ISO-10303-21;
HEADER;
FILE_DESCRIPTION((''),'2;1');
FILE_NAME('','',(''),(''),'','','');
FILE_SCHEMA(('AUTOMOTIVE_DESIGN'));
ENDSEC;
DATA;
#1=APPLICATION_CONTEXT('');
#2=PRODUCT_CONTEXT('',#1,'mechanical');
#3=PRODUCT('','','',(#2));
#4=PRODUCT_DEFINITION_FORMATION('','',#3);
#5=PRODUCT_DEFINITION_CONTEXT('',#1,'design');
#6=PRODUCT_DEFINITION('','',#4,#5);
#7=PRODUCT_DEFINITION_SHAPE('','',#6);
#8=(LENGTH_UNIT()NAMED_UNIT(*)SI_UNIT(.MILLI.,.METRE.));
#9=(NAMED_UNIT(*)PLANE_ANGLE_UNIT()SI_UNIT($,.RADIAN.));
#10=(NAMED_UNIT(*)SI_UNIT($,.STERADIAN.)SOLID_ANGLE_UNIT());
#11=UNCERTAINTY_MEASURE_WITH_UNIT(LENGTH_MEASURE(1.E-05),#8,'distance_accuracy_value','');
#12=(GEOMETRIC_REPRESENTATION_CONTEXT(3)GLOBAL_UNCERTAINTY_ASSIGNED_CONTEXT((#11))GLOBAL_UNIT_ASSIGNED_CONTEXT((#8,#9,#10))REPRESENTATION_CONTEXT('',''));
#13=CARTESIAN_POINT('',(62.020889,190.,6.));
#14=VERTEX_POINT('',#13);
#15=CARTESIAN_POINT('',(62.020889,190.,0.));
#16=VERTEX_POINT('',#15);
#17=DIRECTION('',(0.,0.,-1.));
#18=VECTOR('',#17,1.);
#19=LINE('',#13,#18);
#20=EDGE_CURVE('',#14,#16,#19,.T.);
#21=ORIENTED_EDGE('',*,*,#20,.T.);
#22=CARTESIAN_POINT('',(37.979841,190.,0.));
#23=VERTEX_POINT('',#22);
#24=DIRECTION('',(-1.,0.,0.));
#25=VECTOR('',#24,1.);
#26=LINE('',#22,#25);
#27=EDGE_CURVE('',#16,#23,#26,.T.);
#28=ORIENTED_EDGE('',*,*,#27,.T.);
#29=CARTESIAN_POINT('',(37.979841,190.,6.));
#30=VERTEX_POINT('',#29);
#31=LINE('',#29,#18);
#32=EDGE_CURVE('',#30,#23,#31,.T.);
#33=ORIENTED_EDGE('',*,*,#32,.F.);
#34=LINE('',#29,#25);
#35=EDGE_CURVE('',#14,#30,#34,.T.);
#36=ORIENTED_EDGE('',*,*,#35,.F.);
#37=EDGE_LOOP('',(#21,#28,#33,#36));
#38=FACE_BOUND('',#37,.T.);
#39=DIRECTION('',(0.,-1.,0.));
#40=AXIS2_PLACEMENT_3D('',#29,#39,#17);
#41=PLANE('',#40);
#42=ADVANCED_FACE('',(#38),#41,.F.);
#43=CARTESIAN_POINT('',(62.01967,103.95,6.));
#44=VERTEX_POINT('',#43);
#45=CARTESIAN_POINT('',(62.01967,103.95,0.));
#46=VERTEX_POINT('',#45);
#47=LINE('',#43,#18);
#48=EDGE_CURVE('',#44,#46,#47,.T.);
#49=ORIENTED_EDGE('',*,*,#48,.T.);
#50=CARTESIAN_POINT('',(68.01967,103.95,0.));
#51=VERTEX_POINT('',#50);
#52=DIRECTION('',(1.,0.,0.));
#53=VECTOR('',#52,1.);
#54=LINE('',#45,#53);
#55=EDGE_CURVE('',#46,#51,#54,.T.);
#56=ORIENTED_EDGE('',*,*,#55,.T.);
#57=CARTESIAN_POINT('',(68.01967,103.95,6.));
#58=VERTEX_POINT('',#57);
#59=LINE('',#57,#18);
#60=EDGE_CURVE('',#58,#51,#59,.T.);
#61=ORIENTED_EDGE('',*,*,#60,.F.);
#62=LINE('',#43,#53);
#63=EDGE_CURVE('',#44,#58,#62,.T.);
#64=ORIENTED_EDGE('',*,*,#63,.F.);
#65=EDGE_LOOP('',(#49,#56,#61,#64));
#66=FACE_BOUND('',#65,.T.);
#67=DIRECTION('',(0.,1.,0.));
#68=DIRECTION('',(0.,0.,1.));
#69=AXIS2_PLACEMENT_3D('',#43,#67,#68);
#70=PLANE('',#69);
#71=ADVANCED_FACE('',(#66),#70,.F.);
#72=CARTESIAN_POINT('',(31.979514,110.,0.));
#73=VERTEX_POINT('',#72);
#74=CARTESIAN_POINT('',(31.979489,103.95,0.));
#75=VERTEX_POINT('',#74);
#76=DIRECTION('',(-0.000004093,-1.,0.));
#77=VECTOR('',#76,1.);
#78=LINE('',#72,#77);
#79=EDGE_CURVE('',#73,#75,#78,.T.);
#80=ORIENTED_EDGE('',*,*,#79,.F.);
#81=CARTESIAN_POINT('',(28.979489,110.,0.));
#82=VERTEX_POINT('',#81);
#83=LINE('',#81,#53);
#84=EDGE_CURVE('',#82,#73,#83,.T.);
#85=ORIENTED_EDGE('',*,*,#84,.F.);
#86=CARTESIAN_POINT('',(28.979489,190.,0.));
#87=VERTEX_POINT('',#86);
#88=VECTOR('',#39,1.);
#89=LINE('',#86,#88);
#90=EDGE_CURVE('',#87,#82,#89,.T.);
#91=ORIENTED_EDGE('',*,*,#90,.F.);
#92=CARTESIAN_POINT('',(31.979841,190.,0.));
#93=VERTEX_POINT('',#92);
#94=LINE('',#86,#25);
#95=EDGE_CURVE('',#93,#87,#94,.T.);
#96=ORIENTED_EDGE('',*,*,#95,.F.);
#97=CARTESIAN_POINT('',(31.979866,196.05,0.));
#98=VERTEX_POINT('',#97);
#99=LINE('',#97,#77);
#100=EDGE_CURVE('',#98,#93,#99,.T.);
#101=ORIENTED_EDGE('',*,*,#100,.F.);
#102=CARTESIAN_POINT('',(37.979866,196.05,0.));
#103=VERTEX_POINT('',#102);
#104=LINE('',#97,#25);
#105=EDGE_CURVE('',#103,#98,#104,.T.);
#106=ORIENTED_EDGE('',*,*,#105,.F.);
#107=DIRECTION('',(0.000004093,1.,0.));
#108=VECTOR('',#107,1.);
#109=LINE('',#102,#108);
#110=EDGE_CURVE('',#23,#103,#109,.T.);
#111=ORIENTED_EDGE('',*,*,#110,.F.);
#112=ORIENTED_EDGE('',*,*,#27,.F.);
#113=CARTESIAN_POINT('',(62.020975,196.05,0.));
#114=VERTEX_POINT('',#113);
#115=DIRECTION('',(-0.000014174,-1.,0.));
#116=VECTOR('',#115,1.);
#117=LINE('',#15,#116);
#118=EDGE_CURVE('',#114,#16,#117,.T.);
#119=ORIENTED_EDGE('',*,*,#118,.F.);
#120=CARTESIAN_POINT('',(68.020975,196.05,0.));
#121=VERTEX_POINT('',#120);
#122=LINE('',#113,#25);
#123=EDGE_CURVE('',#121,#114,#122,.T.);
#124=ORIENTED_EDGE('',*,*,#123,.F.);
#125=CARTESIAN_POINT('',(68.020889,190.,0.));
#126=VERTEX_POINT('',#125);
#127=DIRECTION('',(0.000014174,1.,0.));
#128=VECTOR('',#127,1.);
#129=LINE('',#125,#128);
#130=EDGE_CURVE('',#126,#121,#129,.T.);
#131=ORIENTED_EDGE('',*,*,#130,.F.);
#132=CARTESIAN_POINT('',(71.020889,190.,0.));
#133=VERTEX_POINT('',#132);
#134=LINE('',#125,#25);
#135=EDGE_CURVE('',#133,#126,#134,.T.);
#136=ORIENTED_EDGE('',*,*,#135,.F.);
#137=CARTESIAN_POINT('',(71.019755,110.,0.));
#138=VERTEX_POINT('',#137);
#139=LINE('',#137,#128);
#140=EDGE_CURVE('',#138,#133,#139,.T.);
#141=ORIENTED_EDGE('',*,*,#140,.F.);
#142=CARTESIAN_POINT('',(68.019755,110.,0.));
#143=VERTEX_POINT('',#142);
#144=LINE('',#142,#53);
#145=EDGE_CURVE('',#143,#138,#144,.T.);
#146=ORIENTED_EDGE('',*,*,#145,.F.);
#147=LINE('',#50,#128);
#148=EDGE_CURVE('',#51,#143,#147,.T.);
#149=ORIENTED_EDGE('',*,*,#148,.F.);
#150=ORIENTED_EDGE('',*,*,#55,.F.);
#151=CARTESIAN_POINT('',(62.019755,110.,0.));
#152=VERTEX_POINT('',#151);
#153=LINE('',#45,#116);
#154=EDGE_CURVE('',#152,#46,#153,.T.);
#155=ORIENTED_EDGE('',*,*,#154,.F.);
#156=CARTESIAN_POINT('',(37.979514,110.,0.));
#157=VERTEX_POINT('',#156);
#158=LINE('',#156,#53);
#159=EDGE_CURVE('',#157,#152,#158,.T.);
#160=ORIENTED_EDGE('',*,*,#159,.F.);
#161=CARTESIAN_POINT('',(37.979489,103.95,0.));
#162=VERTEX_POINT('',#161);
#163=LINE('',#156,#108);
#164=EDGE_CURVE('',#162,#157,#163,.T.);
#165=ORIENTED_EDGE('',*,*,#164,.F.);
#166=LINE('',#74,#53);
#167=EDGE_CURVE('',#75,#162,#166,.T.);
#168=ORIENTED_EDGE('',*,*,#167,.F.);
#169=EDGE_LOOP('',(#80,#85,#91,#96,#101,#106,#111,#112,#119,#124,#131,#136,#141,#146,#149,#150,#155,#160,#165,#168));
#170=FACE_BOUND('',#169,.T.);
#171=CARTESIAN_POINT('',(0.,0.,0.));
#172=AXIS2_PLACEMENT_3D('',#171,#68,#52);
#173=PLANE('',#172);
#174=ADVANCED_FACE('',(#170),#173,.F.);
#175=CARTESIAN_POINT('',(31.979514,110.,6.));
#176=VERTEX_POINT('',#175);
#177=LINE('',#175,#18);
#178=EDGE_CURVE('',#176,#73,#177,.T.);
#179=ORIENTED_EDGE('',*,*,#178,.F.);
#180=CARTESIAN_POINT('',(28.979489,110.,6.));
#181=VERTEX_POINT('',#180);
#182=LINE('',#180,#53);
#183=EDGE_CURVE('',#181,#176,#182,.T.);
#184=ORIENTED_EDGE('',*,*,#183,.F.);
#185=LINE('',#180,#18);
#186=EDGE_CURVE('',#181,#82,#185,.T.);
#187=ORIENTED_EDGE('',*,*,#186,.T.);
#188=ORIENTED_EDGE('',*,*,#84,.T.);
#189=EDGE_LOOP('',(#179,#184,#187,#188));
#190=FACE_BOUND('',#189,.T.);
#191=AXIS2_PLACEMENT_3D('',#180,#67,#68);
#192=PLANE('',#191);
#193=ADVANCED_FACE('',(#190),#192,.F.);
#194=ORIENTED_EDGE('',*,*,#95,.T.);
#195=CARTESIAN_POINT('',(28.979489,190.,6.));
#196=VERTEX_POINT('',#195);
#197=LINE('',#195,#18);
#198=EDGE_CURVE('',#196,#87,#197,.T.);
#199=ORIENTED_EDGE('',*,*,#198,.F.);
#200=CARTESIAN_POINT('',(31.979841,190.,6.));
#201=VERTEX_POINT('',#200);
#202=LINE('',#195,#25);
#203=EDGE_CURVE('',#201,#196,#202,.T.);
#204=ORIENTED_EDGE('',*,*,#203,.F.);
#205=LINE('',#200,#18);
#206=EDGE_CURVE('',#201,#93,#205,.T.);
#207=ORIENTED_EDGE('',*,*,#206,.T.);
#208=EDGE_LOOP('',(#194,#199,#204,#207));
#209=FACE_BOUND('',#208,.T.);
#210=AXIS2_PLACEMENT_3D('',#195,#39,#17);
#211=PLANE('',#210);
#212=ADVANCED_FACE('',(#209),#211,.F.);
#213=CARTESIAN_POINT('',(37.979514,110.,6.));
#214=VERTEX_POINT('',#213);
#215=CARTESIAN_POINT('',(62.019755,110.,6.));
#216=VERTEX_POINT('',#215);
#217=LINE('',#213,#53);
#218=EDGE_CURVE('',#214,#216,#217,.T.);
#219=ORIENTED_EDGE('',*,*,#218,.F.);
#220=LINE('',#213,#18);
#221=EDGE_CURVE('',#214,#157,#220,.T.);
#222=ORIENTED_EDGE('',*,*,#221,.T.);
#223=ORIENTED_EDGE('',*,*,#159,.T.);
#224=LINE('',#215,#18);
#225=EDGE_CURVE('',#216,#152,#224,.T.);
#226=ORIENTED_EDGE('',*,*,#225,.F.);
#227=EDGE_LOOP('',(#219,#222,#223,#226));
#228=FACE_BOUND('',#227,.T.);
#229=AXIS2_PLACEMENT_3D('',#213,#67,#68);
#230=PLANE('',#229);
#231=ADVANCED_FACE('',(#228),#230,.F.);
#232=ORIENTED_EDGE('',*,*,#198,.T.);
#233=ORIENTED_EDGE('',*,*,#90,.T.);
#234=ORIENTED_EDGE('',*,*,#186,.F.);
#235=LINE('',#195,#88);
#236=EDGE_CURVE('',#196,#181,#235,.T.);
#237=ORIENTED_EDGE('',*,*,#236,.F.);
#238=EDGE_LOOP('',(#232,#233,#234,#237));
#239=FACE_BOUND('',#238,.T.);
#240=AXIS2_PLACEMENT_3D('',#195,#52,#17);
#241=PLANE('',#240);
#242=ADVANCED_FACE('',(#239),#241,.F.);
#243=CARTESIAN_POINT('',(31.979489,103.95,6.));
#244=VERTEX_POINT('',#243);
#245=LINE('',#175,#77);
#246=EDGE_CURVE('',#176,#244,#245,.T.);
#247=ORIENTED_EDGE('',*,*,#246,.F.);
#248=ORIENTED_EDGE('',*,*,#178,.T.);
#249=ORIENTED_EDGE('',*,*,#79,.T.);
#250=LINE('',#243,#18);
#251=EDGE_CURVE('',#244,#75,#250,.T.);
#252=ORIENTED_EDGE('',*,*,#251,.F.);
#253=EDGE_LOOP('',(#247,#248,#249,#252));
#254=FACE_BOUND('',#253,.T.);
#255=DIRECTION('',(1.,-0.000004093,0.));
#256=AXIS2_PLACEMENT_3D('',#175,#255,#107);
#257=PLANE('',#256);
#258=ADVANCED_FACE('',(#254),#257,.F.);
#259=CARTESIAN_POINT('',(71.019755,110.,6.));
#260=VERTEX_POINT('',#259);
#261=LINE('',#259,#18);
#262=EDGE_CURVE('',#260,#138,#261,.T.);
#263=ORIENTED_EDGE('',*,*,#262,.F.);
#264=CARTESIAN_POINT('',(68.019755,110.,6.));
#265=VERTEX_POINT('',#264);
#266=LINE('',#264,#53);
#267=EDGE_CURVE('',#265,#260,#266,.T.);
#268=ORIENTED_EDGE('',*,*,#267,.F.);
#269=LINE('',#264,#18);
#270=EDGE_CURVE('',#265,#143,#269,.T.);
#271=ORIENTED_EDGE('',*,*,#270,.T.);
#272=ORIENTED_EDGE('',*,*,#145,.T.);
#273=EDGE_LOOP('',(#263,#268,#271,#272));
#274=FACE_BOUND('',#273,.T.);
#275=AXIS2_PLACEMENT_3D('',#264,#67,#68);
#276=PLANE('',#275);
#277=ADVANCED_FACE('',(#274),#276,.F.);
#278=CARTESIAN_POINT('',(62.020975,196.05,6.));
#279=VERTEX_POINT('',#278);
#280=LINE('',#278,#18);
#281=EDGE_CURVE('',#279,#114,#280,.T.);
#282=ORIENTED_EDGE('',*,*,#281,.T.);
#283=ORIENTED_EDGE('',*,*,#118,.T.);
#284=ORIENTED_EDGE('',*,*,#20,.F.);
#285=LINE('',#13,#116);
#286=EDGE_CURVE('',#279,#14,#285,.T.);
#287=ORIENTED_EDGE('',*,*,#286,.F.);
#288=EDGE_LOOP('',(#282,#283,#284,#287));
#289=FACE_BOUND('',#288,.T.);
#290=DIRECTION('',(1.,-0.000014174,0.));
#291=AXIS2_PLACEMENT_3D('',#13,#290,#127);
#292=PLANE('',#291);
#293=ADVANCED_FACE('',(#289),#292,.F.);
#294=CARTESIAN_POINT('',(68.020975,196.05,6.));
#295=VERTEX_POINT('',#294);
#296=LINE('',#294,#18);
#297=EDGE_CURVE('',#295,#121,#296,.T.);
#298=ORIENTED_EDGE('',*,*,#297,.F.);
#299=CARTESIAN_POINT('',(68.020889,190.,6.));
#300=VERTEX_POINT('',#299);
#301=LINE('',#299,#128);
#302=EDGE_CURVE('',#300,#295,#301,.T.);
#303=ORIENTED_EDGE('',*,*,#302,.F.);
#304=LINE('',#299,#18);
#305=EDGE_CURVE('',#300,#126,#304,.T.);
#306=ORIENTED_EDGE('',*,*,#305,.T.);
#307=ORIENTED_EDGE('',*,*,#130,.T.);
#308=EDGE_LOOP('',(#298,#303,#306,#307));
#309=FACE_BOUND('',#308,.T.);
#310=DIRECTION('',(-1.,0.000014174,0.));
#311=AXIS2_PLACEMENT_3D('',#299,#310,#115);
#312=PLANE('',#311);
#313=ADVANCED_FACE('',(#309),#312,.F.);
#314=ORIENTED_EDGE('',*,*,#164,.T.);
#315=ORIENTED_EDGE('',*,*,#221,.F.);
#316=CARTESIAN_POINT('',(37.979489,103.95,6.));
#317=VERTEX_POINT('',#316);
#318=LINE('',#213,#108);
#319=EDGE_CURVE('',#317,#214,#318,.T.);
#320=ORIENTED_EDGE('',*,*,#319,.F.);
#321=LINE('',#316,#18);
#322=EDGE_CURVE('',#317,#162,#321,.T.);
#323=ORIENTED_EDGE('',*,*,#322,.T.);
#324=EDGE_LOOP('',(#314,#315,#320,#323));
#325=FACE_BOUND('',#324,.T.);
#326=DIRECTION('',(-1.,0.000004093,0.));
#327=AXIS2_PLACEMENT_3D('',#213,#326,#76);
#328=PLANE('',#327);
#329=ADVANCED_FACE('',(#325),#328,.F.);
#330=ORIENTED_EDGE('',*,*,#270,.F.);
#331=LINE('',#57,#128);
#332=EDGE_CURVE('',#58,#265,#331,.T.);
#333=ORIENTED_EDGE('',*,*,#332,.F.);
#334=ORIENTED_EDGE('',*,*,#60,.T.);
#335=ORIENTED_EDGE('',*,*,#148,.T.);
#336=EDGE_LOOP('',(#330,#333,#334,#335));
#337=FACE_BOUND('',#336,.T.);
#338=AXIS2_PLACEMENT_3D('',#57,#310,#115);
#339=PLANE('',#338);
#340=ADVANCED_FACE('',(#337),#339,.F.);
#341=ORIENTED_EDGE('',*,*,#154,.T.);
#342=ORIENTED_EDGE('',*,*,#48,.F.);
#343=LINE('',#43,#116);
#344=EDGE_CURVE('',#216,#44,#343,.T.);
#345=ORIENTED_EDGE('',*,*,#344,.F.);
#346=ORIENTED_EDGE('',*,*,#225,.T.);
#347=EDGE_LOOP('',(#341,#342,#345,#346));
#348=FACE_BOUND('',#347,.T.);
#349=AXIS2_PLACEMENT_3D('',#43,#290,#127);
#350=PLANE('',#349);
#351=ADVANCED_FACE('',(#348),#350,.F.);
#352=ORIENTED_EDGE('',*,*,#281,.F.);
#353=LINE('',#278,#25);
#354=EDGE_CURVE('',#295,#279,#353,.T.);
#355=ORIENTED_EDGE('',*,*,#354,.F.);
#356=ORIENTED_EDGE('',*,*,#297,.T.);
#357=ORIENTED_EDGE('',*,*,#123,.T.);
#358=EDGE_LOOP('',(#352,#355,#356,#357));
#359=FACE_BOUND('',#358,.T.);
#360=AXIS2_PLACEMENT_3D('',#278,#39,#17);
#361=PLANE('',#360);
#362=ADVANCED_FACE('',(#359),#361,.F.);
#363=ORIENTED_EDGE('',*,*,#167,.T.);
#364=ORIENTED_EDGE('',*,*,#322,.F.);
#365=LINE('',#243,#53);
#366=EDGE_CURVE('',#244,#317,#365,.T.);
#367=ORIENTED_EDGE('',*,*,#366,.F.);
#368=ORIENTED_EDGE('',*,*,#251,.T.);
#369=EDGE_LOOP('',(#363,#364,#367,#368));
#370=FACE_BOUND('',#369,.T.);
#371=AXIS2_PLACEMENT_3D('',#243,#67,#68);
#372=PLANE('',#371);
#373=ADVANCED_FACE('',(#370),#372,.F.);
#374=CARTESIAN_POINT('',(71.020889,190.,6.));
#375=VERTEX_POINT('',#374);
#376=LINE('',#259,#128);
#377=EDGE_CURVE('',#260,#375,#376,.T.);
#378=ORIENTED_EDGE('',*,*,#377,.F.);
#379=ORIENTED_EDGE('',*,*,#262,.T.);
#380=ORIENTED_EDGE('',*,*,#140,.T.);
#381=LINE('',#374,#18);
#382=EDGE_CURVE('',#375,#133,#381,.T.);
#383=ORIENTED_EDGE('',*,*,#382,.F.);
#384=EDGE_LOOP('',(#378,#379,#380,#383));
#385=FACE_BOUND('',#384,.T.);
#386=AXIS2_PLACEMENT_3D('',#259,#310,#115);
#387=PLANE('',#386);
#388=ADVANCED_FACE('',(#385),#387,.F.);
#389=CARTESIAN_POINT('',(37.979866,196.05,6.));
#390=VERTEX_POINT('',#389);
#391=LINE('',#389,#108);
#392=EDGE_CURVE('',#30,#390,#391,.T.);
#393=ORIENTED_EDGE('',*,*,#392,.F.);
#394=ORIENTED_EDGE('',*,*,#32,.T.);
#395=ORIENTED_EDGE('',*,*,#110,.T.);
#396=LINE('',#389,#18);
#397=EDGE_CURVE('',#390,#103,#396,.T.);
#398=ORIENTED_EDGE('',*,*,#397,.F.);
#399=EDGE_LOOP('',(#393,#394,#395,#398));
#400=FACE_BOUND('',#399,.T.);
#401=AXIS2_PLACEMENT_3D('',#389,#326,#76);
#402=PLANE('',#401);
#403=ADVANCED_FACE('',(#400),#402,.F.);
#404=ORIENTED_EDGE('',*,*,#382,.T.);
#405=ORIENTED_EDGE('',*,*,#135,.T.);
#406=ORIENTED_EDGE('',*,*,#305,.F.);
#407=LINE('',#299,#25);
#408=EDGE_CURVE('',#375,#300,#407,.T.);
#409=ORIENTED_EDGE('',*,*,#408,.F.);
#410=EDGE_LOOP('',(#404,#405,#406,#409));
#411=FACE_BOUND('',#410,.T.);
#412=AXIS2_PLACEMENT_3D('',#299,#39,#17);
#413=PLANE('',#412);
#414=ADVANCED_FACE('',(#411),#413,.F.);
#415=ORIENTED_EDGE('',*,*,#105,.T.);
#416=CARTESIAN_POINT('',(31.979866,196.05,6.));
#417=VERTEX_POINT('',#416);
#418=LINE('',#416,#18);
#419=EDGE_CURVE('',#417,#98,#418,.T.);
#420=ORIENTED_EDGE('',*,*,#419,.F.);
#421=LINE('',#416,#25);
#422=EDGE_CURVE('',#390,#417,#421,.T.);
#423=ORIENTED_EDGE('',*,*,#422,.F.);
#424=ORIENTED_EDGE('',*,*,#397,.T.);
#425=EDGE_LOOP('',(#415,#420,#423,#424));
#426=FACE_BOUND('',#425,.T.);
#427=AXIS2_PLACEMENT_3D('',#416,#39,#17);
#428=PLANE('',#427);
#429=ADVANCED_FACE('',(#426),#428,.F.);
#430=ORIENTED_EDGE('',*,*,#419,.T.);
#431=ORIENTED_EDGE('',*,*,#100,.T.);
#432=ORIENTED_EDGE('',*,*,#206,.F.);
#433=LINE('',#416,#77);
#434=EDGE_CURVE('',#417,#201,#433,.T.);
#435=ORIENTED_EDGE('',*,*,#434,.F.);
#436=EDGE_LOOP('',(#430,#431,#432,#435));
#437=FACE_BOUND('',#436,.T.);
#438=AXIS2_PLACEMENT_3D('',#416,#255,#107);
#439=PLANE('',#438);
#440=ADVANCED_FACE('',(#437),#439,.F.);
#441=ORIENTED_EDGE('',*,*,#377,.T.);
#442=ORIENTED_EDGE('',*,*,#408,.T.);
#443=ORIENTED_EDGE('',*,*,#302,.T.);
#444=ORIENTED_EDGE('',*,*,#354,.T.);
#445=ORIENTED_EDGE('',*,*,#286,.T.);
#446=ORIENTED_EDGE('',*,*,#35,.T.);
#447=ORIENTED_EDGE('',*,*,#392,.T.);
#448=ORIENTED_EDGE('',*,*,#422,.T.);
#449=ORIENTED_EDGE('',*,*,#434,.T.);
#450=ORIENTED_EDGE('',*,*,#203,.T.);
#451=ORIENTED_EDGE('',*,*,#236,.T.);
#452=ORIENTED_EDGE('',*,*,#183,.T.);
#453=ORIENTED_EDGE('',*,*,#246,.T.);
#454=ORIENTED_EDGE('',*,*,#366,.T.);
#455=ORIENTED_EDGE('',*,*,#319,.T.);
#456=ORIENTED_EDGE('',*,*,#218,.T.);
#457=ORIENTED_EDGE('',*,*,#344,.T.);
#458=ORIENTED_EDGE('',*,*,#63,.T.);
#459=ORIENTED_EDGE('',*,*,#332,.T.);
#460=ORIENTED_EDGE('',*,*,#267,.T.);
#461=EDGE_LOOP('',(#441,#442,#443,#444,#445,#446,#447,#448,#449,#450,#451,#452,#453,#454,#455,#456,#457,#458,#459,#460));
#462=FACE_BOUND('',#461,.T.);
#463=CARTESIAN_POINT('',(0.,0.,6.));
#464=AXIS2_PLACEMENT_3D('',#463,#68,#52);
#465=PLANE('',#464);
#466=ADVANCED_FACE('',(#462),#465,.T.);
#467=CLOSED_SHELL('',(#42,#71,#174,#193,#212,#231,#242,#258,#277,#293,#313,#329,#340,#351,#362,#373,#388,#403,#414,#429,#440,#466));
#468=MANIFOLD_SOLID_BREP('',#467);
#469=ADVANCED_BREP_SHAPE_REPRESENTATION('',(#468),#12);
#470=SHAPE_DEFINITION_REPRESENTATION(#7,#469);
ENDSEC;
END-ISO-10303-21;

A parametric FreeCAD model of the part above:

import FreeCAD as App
import Part
import Sketcher
from FreeCAD import Vector
Q = App.Units.Quantity

doc = App.newDocument("Part")
body = doc.addObject("PartDesign::Body", "Body")

sketch1 = body.newObject("Sketcher::SketchObject", "Sketch")
sketch1.AttachmentSupport = (doc.getObject("XY_Plane"), [""])
sketch1.MapMode = "FlatFace"
sketch1.addGeometry([
    Part.LineSegment(Vector(32, 104, 0), Vector(38, 104, 0)),
    Part.LineSegment(Vector(38, 104, 0), Vector(38, 110, 0)),
    Part.LineSegment(Vector(38, 110, 0), Vector(62, 110, 0)),
    Part.LineSegment(Vector(62, 110, 0), Vector(62, 104, 0)),
    Part.LineSegment(Vector(62, 104, 0), Vector(68, 104, 0)),
    Part.LineSegment(Vector(68, 104, 0), Vector(68, 110, 0)),
    Part.LineSegment(Vector(68, 110, 0), Vector(71, 110, 0)),
    Part.LineSegment(Vector(71, 110, 0), Vector(71, 190, 0)),
    Part.LineSegment(Vector(71, 190, 0), Vector(68, 190, 0)),
    Part.LineSegment(Vector(68, 190, 0), Vector(68, 196.1, 0)),
    Part.LineSegment(Vector(68, 196.1, 0), Vector(62, 196.1, 0)),
    Part.LineSegment(Vector(62, 196.1, 0), Vector(62, 190, 0)),
    Part.LineSegment(Vector(62, 190, 0), Vector(38, 190, 0)),
    Part.LineSegment(Vector(38, 190, 0), Vector(38, 196.1, 0)),
    Part.LineSegment(Vector(38, 196.1, 0), Vector(32, 196.1, 0)),
    Part.LineSegment(Vector(32, 196.1, 0), Vector(32, 190, 0)),
    Part.LineSegment(Vector(32, 190, 0), Vector(29, 190, 0)),
    Part.LineSegment(Vector(29, 190, 0), Vector(29, 110, 0)),
    Part.LineSegment(Vector(29, 110, 0), Vector(32, 110, 0)),
    Part.LineSegment(Vector(32, 110, 0), Vector(32, 104, 0)),
], False)
sketch1.addConstraint([
    Sketcher.Constraint("Coincident", 0, 2, 1, 1),
    Sketcher.Constraint("Coincident", 1, 2, 2, 1),
    Sketcher.Constraint("Coincident", 2, 2, 3, 1),
    Sketcher.Constraint("Coincident", 3, 2, 4, 1),
    Sketcher.Constraint("Coincident", 4, 2, 5, 1),
    Sketcher.Constraint("Coincident", 5, 2, 6, 1),
    Sketcher.Constraint("Coincident", 6, 2, 7, 1),
    Sketcher.Constraint("Coincident", 7, 2, 8, 1),
    Sketcher.Constraint("Coincident", 8, 2, 9, 1),
    Sketcher.Constraint("Coincident", 9, 2, 10, 1),
    Sketcher.Constraint("Coincident", 10, 2, 11, 1),
    Sketcher.Constraint("Coincident", 11, 2, 12, 1),
    Sketcher.Constraint("Coincident", 12, 2, 13, 1),
    Sketcher.Constraint("Coincident", 13, 2, 14, 1),
    Sketcher.Constraint("Coincident", 14, 2, 15, 1),
    Sketcher.Constraint("Coincident", 15, 2, 16, 1),
    Sketcher.Constraint("Coincident", 16, 2, 17, 1),
    Sketcher.Constraint("Coincident", 17, 2, 18, 1),
    Sketcher.Constraint("Coincident", 18, 2, 19, 1),
    Sketcher.Constraint("Coincident", 19, 2, 0, 1),
    Sketcher.Constraint("Horizontal", 0),
    Sketcher.Constraint("Horizontal", 2),
    Sketcher.Constraint("Horizontal", 4),
    Sketcher.Constraint("Horizontal", 6),
    Sketcher.Constraint("Horizontal", 8),
    Sketcher.Constraint("Horizontal", 10),
    Sketcher.Constraint("Horizontal", 12),
    Sketcher.Constraint("Horizontal", 14),
    Sketcher.Constraint("Horizontal", 16),
    Sketcher.Constraint("Vertical", 17),
    Sketcher.Constraint("Horizontal", 18),
    Sketcher.Constraint("Parallel", 3, 5),
    Sketcher.Constraint("Parallel", 5, 7),
    Sketcher.Constraint("Parallel", 7, 9),
    Sketcher.Constraint("Parallel", 9, 11),
    Sketcher.Constraint("Parallel", 1, 13),
    Sketcher.Constraint("Parallel", 13, 15),
    Sketcher.Constraint("Parallel", 15, 19),
    Sketcher.Constraint("Horizontal", 0, 2, 3, 2),
    Sketcher.Constraint("Horizontal", 2, 2, 5, 2),
    Sketcher.Constraint("Horizontal", 8, 2, 11, 2),
    Sketcher.Constraint("Horizontal", 10, 2, 13, 2),
    Sketcher.Constraint("Horizontal", 12, 2, 15, 2),
    Sketcher.Constraint("Horizontal", 6, 2, 17, 2),
    Sketcher.Constraint("Equal", 0, 4),
    Sketcher.Constraint("Equal", 6, 8),
    Sketcher.Constraint("Equal", 4, 10),
    Sketcher.Constraint("Equal", 10, 14),
    Sketcher.Constraint("Equal", 5, 9),
    Sketcher.Constraint("DistanceX", 0, 1, 0, 2, Q("6 mm")),
    Sketcher.Constraint("DistanceX", 6, 1, 6, 2, Q("3 mm")),
    Sketcher.Constraint("DistanceY", 17, 2, 17, 1, Q("80 mm")),
    Sketcher.Constraint("DistanceY", -1, 1, 1, 2, Q("110 mm")),
    Sketcher.Constraint("DistanceX", 17, 2, 0, 2, Q("9 mm")),
    Sketcher.Constraint("Distance", 1, Q("6.05 mm")),
    Sketcher.Constraint("DistanceX", 2, 1, 2, 2, Q("24.040242 mm")),
    Sketcher.Constraint("DistanceX", 12, 2, 12, 1, Q("24.041048 mm")),
    Sketcher.Constraint("DistanceX", 16, 2, 11, 2, Q("33.0414 mm")),
    Sketcher.Constraint("DistanceX", 18, 1, 18, 2, Q("3.000025 mm")),
    Sketcher.Constraint("DistanceX", -1, 1, 0, 2, Q("37.979489 mm")),
])
pad1 = body.newObject("PartDesign::Pad", "Pad")
pad1.Profile = sketch1
pad1.Length = 6

doc.recompute()
